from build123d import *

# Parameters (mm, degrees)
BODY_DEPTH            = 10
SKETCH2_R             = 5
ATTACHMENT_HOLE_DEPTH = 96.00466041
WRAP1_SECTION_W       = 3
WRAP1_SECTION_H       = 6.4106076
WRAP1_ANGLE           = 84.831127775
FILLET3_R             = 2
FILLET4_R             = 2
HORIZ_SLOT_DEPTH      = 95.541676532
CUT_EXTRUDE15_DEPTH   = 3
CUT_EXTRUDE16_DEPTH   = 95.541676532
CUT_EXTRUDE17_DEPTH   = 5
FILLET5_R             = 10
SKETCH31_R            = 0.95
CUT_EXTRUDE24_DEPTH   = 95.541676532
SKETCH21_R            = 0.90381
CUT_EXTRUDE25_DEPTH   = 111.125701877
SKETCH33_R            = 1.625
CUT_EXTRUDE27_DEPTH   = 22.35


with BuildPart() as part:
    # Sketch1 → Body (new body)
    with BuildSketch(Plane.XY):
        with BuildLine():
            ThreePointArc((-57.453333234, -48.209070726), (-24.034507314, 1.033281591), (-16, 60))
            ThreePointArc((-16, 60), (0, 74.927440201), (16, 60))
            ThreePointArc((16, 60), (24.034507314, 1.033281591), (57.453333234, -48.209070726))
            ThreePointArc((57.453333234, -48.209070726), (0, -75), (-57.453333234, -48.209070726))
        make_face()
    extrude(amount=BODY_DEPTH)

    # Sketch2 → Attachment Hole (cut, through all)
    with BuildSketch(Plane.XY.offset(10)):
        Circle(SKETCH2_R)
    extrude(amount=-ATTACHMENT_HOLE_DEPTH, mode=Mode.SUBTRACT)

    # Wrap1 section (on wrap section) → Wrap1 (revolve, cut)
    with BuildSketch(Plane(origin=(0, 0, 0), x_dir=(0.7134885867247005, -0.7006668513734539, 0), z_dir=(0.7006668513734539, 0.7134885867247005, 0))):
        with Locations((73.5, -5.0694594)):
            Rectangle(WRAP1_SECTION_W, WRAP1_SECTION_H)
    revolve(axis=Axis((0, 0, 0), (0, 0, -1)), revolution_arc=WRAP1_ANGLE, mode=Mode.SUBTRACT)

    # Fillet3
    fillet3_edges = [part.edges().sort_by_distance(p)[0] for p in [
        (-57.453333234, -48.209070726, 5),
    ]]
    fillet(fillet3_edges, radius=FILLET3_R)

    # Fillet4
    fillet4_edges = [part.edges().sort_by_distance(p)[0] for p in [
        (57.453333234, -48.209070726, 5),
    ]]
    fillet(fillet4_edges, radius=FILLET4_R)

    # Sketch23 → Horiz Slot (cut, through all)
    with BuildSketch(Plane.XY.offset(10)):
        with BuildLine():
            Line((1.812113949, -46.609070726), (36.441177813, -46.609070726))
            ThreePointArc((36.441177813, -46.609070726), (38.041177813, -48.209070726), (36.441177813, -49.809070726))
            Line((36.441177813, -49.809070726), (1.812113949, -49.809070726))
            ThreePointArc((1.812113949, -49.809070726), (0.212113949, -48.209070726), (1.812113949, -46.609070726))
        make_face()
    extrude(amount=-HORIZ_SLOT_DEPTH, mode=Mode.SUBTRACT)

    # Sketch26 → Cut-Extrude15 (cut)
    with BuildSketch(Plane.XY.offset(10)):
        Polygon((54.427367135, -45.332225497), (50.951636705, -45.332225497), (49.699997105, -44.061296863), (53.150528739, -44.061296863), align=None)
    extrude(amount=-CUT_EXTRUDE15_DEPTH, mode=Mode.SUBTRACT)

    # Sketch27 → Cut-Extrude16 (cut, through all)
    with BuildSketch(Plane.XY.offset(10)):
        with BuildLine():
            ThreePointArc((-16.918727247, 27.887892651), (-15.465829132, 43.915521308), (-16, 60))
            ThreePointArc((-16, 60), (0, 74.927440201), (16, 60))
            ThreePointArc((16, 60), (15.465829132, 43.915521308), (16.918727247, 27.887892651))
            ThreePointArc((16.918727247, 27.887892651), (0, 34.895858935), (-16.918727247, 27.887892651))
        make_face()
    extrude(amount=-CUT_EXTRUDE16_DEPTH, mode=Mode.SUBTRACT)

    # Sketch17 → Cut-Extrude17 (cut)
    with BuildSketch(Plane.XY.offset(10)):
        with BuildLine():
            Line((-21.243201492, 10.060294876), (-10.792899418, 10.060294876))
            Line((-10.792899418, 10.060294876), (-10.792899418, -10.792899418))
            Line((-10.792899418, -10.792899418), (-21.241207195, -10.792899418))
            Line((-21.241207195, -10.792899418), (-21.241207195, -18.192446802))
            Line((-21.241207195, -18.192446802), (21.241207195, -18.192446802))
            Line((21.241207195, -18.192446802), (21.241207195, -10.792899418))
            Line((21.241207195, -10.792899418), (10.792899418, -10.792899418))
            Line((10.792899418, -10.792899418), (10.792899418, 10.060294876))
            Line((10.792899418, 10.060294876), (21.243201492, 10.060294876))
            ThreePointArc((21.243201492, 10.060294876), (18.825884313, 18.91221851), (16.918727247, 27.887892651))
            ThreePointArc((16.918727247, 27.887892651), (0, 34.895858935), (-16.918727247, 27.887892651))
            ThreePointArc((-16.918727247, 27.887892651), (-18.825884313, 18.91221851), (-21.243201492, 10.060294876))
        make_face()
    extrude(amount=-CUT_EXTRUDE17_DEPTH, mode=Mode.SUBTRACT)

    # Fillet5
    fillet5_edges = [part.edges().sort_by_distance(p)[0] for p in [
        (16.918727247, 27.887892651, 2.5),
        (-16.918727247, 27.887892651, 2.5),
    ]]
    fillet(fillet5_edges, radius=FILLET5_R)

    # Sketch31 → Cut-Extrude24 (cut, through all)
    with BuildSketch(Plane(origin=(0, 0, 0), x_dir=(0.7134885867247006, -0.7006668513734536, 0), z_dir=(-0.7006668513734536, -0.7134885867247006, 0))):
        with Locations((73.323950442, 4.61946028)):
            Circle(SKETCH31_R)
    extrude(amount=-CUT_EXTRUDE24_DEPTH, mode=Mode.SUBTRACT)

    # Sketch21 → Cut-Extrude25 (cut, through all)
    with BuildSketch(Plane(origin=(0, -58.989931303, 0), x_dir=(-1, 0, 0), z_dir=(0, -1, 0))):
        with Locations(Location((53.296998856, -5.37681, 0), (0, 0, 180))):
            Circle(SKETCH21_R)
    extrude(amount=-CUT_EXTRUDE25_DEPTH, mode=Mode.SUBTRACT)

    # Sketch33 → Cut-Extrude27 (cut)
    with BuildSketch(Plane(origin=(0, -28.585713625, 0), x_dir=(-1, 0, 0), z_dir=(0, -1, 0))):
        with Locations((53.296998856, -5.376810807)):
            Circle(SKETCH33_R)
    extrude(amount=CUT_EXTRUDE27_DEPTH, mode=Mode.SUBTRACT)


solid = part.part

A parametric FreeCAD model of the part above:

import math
import FreeCAD as App
import Part
import Sketcher

V = App.Vector


def edges_at(feature, points):
    """Names of the edges that pass closest to the given points."""
    edges = feature.Shape.Edges
    near = lambda p: min(range(len(edges)), key=lambda i: edges[i].distToShape(Part.Vertex(*p))[0])
    return sorted({f"Edge{near(p) + 1}" for p in points})


def add_polygon(sketch, points):
    """Adds a closed chain of lines whose ends are joined by coincident constraints."""
    first, n = sketch.GeometryCount, len(points)
    for a, b in zip(points, points[1:] + points[:1]):
        sketch.addGeometry(Part.LineSegment(App.Vector(*a, 0), App.Vector(*b, 0)), False)
    for i in range(n):
        sketch.addConstraint(Sketcher.Constraint("Coincident", first + i, 2, first + (i + 1) % n, 1))

doc = App.newDocument("Part")
body = doc.addObject("PartDesign::Body", "Body")

sketch1 = body.newObject("Sketcher::SketchObject", "Sketch")
sketch1.AttachmentSupport = (doc.getObject("XY_Plane"), [""])
sketch1.MapMode = "FlatFace"
sketch1.addGeometry([
    Part.ArcOfCircle(Part.Circle(V(-146, 48, 0), V(0, 0, 1), 130), math.radians(-47), math.radians(5)),
    Part.ArcOfCircle(Part.Circle(V(0, 0, 0), V(0, 0, 1), 75), math.radians(-140), math.radians(-40)),
    Part.ArcOfCircle(Part.Circle(V(146, 48, 0), V(0, 0, 1), 130), math.radians(175), math.radians(227)),
    Part.ArcOfCircle(Part.Circle(V(0, 59, 0), V(0, 0, 1), 16), math.radians(4), math.radians(176)),
], False)
sketch1.addConstraint([
    Sketcher.Constraint("Coincident", 0, 1, 1, 1),
    Sketcher.Constraint("Coincident", 1, 2, 2, 2),
    Sketcher.Constraint("Coincident", 2, 1, 3, 1),
    Sketcher.Constraint("Coincident", 3, 2, 0, 2),
    Sketcher.Constraint("Coincident", 1, 3, -1, 1),
    Sketcher.Constraint("Equal", 0, 2),
    Sketcher.Constraint("Symmetric", 0, 3, 2, 3, -2),
    Sketcher.Constraint("PointOnObject", 3, 3, -2),
    Sketcher.Constraint("Radius", 1, 75.0),
    Sketcher.Constraint("DistanceX", -1, 1, 2, 1, 16.0),
    Sketcher.Constraint("DistanceY", -1, 1, 2, 1, 60.0),
    Sketcher.Constraint("Radius", 0, 130.287304),
    Sketcher.Constraint("Radius", 3, 16.038533),
    Sketcher.Constraint("DistanceY", 0, 1, -1, 1, 48.209071),
])
pad1 = body.newObject("PartDesign::Pad", "Pad")
pad1.Profile = sketch1
pad1.Length = 10

sketch2 = body.newObject("Sketcher::SketchObject", "Sketch001")
sketch2.AttachmentSupport = (doc.getObject("XY_Plane"), [""])
sketch2.MapMode = "FlatFace"
sketch2.AttachmentOffset = App.Placement(V(0, 0, 10), App.Rotation())
sketch2.addGeometry(Part.Circle(V(0, 0, 0), V(0, 0, 1), 5), False)
sketch2.addConstraint([
    Sketcher.Constraint("Coincident", 0, 3, -1, 1),
    Sketcher.Constraint("Diameter", 0, 10.0),
])
pocket1 = body.newObject("PartDesign::Pocket", "Pocket")
pocket1.Profile = sketch2
pocket1.Type = "ThroughAll"

sketch3 = body.newObject("Sketcher::SketchObject", "Sketch002")
sketch3.Placement = App.Placement(V(0, 0, 0), App.Rotation(V(0.713488587, -0.700666851, 0), V(0, 0, -1), V(0.700666851, 0.713488587, 0), "ZXY"))
add_polygon(sketch3, [(72, -1.9), (72, -8.3), (75, -8.3), (75, -1.9)])
sketch3.addConstraint([
    Sketcher.Constraint("Vertical", 0),
    Sketcher.Constraint("Horizontal", 1),
    Sketcher.Constraint("Vertical", 2),
    Sketcher.Constraint("Horizontal", 3),
    Sketcher.Constraint("DistanceX", 1, 1, 1, 2, 3.0),
    Sketcher.Constraint("DistanceX", -1, 1, 0, 2, 72.0),
    Sketcher.Constraint("DistanceY", 0, 2, 0, 1, 6.410608),
    Sketcher.Constraint("DistanceY", 0, 2, -1, 1, 8.274763),
])
groove = body.newObject("PartDesign::Groove", "Groove")
groove.Profile = sketch3
groove.ReferenceAxis = (sketch3, ["V_Axis"])
groove.Angle = 84.831128
doc.recompute()

fillet = body.newObject("PartDesign::Fillet", "Fillet")
fillet.Base = (groove, edges_at(groove, [(-57.453, -48.209, 5)]))
fillet.Radius = 2
doc.recompute()

fillet2 = body.newObject("PartDesign::Fillet", "Fillet001")
fillet2.Base = (fillet, edges_at(fillet, [(57.453, -48.209, 5)]))
fillet2.Radius = 2

sketch4 = body.newObject("Sketcher::SketchObject", "Sketch003")
sketch4.AttachmentSupport = (doc.getObject("XY_Plane"), [""])
sketch4.MapMode = "FlatFace"
sketch4.AttachmentOffset = App.Placement(V(0, 0, 10), App.Rotation())
sketch4.addGeometry([
    Part.LineSegment(V(36.4, -46.6, 0), V(1.8, -46.6, 0)),
    Part.ArcOfCircle(Part.Circle(V(1.8, -48.2, 0), V(0, 0, 1), 1.6), math.radians(90), math.radians(270)),
    Part.LineSegment(V(1.8, -49.8, 0), V(36.4, -49.8, 0)),
    Part.ArcOfCircle(Part.Circle(V(36.4, -48.2, 0), V(0, 0, 1), 1.6), math.radians(-90), math.radians(90)),
], False)
sketch4.addConstraint([
    Sketcher.Constraint("Tangent", 0, 2, 1, 1),
    Sketcher.Constraint("Tangent", 1, 2, 2, 1),
    Sketcher.Constraint("Tangent", 2, 2, 3, 1),
    Sketcher.Constraint("Tangent", 3, 2, 0, 1),
    Sketcher.Constraint("Horizontal", 0),
    Sketcher.Constraint("Horizontal", 2),
    Sketcher.Constraint("Radius", 1, 1.6),
    Sketcher.Constraint("DistanceX", 0, 2, 0, 1, 34.629064),
    Sketcher.Constraint("DistanceY", 1, 3, -1, 1, 48.209071),
    Sketcher.Constraint("DistanceX", -1, 1, 1, 3, 1.812114),
])
pocket2 = body.newObject("PartDesign::Pocket", "Pocket001")
pocket2.Profile = sketch4
pocket2.Type = "ThroughAll"

sketch5 = body.newObject("Sketcher::SketchObject", "Sketch004")
sketch5.AttachmentSupport = (doc.getObject("XY_Plane"), [""])
sketch5.MapMode = "FlatFace"
sketch5.AttachmentOffset = App.Placement(V(0, 0, 10), App.Rotation())
add_polygon(sketch5, [(51, -45.3), (54.4, -45.3), (53.2, -44.1), (49.7, -44.1)])
sketch5.addConstraint([
    Sketcher.Constraint("Horizontal", 0),
    Sketcher.Constraint("Horizontal", 2),
    Sketcher.Constraint("DistanceX", 0, 1, 0, 2, 3.47573),
    Sketcher.Constraint("DistanceX", 2, 2, 2, 1, 3.450532),
    Sketcher.Constraint("Distance", 1, 1.801548),
    Sketcher.Constraint("DistanceX", -1, 1, 1, 2, 53.150529),
    Sketcher.Constraint("DistanceX", 1, 2, 0, 2, 1.276838),
    Sketcher.Constraint("DistanceY", 0, 2, -1, 1, 45.332225),
])
pocket3 = body.newObject("PartDesign::Pocket", "Pocket002")
pocket3.Profile = sketch5
pocket3.Length = 3

sketch6 = body.newObject("Sketcher::SketchObject", "Sketch005")
sketch6.AttachmentSupport = (doc.getObject("XY_Plane"), [""])
sketch6.MapMode = "FlatFace"
sketch6.AttachmentOffset = App.Placement(V(0, 0, 10), App.Rotation())
sketch6.addGeometry([
    Part.ArcOfCircle(Part.Circle(V(-146, 48, 0), V(0, 0, 1), 130), math.radians(-8.72), math.radians(5.44)),
    Part.ArcOfCircle(Part.Circle(V(0, 11, 0), V(0, 0, 1), 24), math.radians(45), math.radians(135)),
    Part.ArcOfCircle(Part.Circle(V(146, 48, 0), V(0, 0, 1), 130), math.radians(174.56), math.radians(188.72)),
    Part.ArcOfCircle(Part.Circle(V(0, 59, 0), V(0, 0, 1), 16), math.radians(4), math.radians(176)),
], False)
sketch6.addConstraint([
    Sketcher.Constraint("Coincident", 0, 1, 1, 2),
    Sketcher.Constraint("Coincident", 1, 1, 2, 2),
    Sketcher.Constraint("Coincident", 2, 1, 3, 1),
    Sketcher.Constraint("Coincident", 3, 2, 0, 2),
    Sketcher.Constraint("Equal", 0, 2),
    Sketcher.Constraint("Symmetric", 0, 3, 2, 3, -2),
    Sketcher.Constraint("PointOnObject", 1, 3, -2),
    Sketcher.Constraint("PointOnObject", 3, 3, -2),
    Sketcher.Constraint("DistanceX", -1, 1, 2, 1, 16.0),
    Sketcher.Constraint("DistanceY", -1, 1, 2, 1, 60.0),
    Sketcher.Constraint("Radius", 0, 130.287304),
    Sketcher.Constraint("Radius", 1, 23.926694),
    Sketcher.Constraint("Radius", 3, 16.038533),
    Sketcher.Constraint("DistanceY", 1, 3, 0, 3, 36.67235),
    Sketcher.Constraint("DistanceY", 0, 3, 3, 3, 11.247392),
])
pocket4 = body.newObject("PartDesign::Pocket", "Pocket003")
pocket4.Profile = sketch6
pocket4.Type = "ThroughAll"

sketch7 = body.newObject("Sketcher::SketchObject", "Sketch006")
sketch7.AttachmentSupport = (doc.getObject("XY_Plane"), [""])
sketch7.MapMode = "FlatFace"
sketch7.AttachmentOffset = App.Placement(V(0, 0, 10), App.Rotation())
sketch7.addGeometry([
    Part.LineSegment(V(-21, 10, 0), V(-11, 10, 0)),
    Part.LineSegment(V(-11, 10, 0), V(-11, -11, 0)),
    Part.LineSegment(V(-11, -11, 0), V(-21, -11, 0)),
    Part.LineSegment(V(-21, -11, 0), V(-21, -18, 0)),
    Part.LineSegment(V(-21, -18, 0), V(21, -18, 0)),
    Part.LineSegment(V(21, -18, 0), V(21, -11, 0)),
    Part.LineSegment(V(21, -11, 0), V(11, -11, 0)),
    Part.LineSegment(V(11, -11, 0), V(11, 10, 0)),
    Part.LineSegment(V(11, 10, 0), V(21, 10, 0)),
    Part.ArcOfCircle(Part.Circle(V(175, 57, 0), V(0, 0, 1), 160), math.radians(-169.64), math.radians(-163.09)),
    Part.ArcOfCircle(Part.Circle(V(0, 11, 0), V(0, 0, 1), 24), math.radians(45), math.radians(135)),
    Part.ArcOfCircle(Part.Circle(V(-175, 57, 0), V(0, 0, 1), 160), math.radians(-16.91), math.radians(-10.36)),
], False)
sketch7.addConstraint([
    Sketcher.Constraint("Coincident", 0, 2, 1, 1),
    Sketcher.Constraint("Coincident", 1, 2, 2, 1),
    Sketcher.Constraint("Coincident", 2, 2, 3, 1),
    Sketcher.Constraint("Coincident", 3, 2, 4, 1),
    Sketcher.Constraint("Coincident", 4, 2, 5, 1),
    Sketcher.Constraint("Coincident", 5, 2, 6, 1),
    Sketcher.Constraint("Coincident", 6, 2, 7, 1),
    Sketcher.Constraint("Coincident", 7, 2, 8, 1),
    Sketcher.Constraint("Coincident", 8, 2, 9, 2),
    Sketcher.Constraint("Coincident", 9, 1, 10, 1),
    Sketcher.Constraint("Coincident", 10, 2, 11, 2),
    Sketcher.Constraint("Coincident", 11, 1, 0, 1),
    Sketcher.Constraint("Horizontal", 0),
    Sketcher.Constraint("Vertical", 1),
    Sketcher.Constraint("Horizontal", 2),
    Sketcher.Constraint("Vertical", 3),
    Sketcher.Constraint("Horizontal", 4),
    Sketcher.Constraint("Vertical", 5),
    Sketcher.Constraint("Horizontal", 6),
    Sketcher.Constraint("Vertical", 7),
    Sketcher.Constraint("Horizontal", 8),
    Sketcher.Constraint("Equal", 9, 11),
    Sketcher.Constraint("Symmetric", 9, 3, 11, 3, -2),
    Sketcher.Constraint("Symmetric", 2, 2, 5, 2, -2),
    Sketcher.Constraint("Symmetric", 0, 2, 7, 2, -2),
    Sketcher.Constraint("PointOnObject", 10, 3, -2),
    Sketcher.Constraint("Radius", 9, 160.394717),
    Sketcher.Constraint("Radius", 10, 23.926694),
    Sketcher.Constraint("DistanceX", 0, 2, -1, 1, 10.792899),
    Sketcher.Constraint("DistanceY", 1, 2, -1, 1, 10.792899),
    Sketcher.Constraint("DistanceX", -1, 1, 8, 2, 21.243201),
    Sketcher.Constraint("DistanceX", 2, 2, 2, 1, 10.448308),
    Sketcher.Constraint("DistanceY", 1, 2, 1, 1, 20.853194),
    Sketcher.Constraint("DistanceY", 3, 2, 3, 1, 7.399547),
    Sketcher.Constraint("DistanceY", 10, 3, 9, 3, 45.75379),
    Sketcher.Constraint("DistanceX", 11, 3, 9, 3, 349.40047),
])
pocket5 = body.newObject("PartDesign::Pocket", "Pocket004")
pocket5.Profile = sketch7
pocket5.Length = 5
doc.recompute()

fillet3 = body.newObject("PartDesign::Fillet", "Fillet002")
fillet3.Base = (pocket5, edges_at(pocket5, [(16.919, 27.888, 2.5), (-16.919, 27.888, 2.5)]))
fillet3.Radius = 10

sketch8 = body.newObject("Sketcher::SketchObject", "Sketch007")
sketch8.Placement = App.Placement(V(0, 0, 0), App.Rotation(V(0.713488587, -0.700666851, 0), V(0, 0, 1), V(-0.700666851, -0.713488587, 0), "ZXY"))
sketch8.addGeometry(Part.Circle(V(73.3, 4.6, 0), V(0, 0, 1), 0.9), False)
sketch8.addConstraint([
    Sketcher.Constraint("Diameter", 0, 1.9),
    Sketcher.Constraint("DistanceX", -1, 1, 0, 3, 73.32395),
    Sketcher.Constraint("DistanceY", -1, 1, 0, 3, 4.61946),
])
pocket6 = body.newObject("PartDesign::Pocket", "Pocket005")
pocket6.Profile = sketch8
pocket6.Type = "ThroughAll"

sketch9 = body.newObject("Sketcher::SketchObject", "Sketch008")
sketch9.AttachmentSupport = (doc.getObject("XZ_Plane"), [""])
sketch9.MapMode = "FlatFace"
sketch9.AttachmentOffset = App.Placement(V(0, 0, 58.989931), App.Rotation())
sketch9.addGeometry(Part.Circle(V(-53.3, 5.4, 0), V(0, 0, 1), 0.9), False)
sketch9.addConstraint([
    Sketcher.Constraint("Diameter", 0, 1.80762),
    Sketcher.Constraint("DistanceX", 0, 3, -1, 1, 53.296999),
    Sketcher.Constraint("DistanceY", -1, 1, 0, 3, 5.37681),
])
pocket7 = body.newObject("PartDesign::Pocket", "Pocket006")
pocket7.Profile = sketch9
pocket7.Type = "ThroughAll"

sketch10 = body.newObject("Sketcher::SketchObject", "Sketch009")
sketch10.AttachmentSupport = (doc.getObject("XZ_Plane"), [""])
sketch10.MapMode = "FlatFace"
sketch10.AttachmentOffset = App.Placement(V(0, 0, 28.585714), App.Rotation())
sketch10.addGeometry(Part.Circle(V(-53.3, 5.4, 0), V(0, 0, 1), 1.6), False)
sketch10.addConstraint([
    Sketcher.Constraint("Diameter", 0, 3.25),
    Sketcher.Constraint("DistanceX", 0, 3, -1, 1, 53.296999),
    Sketcher.Constraint("DistanceY", -1, 1, 0, 3, 5.376811),
])
pocket8 = body.newObject("PartDesign::Pocket", "Pocket007")
pocket8.Profile = sketch10
pocket8.Length = 22.35
pocket8.Reversed = True

doc.recompute()
